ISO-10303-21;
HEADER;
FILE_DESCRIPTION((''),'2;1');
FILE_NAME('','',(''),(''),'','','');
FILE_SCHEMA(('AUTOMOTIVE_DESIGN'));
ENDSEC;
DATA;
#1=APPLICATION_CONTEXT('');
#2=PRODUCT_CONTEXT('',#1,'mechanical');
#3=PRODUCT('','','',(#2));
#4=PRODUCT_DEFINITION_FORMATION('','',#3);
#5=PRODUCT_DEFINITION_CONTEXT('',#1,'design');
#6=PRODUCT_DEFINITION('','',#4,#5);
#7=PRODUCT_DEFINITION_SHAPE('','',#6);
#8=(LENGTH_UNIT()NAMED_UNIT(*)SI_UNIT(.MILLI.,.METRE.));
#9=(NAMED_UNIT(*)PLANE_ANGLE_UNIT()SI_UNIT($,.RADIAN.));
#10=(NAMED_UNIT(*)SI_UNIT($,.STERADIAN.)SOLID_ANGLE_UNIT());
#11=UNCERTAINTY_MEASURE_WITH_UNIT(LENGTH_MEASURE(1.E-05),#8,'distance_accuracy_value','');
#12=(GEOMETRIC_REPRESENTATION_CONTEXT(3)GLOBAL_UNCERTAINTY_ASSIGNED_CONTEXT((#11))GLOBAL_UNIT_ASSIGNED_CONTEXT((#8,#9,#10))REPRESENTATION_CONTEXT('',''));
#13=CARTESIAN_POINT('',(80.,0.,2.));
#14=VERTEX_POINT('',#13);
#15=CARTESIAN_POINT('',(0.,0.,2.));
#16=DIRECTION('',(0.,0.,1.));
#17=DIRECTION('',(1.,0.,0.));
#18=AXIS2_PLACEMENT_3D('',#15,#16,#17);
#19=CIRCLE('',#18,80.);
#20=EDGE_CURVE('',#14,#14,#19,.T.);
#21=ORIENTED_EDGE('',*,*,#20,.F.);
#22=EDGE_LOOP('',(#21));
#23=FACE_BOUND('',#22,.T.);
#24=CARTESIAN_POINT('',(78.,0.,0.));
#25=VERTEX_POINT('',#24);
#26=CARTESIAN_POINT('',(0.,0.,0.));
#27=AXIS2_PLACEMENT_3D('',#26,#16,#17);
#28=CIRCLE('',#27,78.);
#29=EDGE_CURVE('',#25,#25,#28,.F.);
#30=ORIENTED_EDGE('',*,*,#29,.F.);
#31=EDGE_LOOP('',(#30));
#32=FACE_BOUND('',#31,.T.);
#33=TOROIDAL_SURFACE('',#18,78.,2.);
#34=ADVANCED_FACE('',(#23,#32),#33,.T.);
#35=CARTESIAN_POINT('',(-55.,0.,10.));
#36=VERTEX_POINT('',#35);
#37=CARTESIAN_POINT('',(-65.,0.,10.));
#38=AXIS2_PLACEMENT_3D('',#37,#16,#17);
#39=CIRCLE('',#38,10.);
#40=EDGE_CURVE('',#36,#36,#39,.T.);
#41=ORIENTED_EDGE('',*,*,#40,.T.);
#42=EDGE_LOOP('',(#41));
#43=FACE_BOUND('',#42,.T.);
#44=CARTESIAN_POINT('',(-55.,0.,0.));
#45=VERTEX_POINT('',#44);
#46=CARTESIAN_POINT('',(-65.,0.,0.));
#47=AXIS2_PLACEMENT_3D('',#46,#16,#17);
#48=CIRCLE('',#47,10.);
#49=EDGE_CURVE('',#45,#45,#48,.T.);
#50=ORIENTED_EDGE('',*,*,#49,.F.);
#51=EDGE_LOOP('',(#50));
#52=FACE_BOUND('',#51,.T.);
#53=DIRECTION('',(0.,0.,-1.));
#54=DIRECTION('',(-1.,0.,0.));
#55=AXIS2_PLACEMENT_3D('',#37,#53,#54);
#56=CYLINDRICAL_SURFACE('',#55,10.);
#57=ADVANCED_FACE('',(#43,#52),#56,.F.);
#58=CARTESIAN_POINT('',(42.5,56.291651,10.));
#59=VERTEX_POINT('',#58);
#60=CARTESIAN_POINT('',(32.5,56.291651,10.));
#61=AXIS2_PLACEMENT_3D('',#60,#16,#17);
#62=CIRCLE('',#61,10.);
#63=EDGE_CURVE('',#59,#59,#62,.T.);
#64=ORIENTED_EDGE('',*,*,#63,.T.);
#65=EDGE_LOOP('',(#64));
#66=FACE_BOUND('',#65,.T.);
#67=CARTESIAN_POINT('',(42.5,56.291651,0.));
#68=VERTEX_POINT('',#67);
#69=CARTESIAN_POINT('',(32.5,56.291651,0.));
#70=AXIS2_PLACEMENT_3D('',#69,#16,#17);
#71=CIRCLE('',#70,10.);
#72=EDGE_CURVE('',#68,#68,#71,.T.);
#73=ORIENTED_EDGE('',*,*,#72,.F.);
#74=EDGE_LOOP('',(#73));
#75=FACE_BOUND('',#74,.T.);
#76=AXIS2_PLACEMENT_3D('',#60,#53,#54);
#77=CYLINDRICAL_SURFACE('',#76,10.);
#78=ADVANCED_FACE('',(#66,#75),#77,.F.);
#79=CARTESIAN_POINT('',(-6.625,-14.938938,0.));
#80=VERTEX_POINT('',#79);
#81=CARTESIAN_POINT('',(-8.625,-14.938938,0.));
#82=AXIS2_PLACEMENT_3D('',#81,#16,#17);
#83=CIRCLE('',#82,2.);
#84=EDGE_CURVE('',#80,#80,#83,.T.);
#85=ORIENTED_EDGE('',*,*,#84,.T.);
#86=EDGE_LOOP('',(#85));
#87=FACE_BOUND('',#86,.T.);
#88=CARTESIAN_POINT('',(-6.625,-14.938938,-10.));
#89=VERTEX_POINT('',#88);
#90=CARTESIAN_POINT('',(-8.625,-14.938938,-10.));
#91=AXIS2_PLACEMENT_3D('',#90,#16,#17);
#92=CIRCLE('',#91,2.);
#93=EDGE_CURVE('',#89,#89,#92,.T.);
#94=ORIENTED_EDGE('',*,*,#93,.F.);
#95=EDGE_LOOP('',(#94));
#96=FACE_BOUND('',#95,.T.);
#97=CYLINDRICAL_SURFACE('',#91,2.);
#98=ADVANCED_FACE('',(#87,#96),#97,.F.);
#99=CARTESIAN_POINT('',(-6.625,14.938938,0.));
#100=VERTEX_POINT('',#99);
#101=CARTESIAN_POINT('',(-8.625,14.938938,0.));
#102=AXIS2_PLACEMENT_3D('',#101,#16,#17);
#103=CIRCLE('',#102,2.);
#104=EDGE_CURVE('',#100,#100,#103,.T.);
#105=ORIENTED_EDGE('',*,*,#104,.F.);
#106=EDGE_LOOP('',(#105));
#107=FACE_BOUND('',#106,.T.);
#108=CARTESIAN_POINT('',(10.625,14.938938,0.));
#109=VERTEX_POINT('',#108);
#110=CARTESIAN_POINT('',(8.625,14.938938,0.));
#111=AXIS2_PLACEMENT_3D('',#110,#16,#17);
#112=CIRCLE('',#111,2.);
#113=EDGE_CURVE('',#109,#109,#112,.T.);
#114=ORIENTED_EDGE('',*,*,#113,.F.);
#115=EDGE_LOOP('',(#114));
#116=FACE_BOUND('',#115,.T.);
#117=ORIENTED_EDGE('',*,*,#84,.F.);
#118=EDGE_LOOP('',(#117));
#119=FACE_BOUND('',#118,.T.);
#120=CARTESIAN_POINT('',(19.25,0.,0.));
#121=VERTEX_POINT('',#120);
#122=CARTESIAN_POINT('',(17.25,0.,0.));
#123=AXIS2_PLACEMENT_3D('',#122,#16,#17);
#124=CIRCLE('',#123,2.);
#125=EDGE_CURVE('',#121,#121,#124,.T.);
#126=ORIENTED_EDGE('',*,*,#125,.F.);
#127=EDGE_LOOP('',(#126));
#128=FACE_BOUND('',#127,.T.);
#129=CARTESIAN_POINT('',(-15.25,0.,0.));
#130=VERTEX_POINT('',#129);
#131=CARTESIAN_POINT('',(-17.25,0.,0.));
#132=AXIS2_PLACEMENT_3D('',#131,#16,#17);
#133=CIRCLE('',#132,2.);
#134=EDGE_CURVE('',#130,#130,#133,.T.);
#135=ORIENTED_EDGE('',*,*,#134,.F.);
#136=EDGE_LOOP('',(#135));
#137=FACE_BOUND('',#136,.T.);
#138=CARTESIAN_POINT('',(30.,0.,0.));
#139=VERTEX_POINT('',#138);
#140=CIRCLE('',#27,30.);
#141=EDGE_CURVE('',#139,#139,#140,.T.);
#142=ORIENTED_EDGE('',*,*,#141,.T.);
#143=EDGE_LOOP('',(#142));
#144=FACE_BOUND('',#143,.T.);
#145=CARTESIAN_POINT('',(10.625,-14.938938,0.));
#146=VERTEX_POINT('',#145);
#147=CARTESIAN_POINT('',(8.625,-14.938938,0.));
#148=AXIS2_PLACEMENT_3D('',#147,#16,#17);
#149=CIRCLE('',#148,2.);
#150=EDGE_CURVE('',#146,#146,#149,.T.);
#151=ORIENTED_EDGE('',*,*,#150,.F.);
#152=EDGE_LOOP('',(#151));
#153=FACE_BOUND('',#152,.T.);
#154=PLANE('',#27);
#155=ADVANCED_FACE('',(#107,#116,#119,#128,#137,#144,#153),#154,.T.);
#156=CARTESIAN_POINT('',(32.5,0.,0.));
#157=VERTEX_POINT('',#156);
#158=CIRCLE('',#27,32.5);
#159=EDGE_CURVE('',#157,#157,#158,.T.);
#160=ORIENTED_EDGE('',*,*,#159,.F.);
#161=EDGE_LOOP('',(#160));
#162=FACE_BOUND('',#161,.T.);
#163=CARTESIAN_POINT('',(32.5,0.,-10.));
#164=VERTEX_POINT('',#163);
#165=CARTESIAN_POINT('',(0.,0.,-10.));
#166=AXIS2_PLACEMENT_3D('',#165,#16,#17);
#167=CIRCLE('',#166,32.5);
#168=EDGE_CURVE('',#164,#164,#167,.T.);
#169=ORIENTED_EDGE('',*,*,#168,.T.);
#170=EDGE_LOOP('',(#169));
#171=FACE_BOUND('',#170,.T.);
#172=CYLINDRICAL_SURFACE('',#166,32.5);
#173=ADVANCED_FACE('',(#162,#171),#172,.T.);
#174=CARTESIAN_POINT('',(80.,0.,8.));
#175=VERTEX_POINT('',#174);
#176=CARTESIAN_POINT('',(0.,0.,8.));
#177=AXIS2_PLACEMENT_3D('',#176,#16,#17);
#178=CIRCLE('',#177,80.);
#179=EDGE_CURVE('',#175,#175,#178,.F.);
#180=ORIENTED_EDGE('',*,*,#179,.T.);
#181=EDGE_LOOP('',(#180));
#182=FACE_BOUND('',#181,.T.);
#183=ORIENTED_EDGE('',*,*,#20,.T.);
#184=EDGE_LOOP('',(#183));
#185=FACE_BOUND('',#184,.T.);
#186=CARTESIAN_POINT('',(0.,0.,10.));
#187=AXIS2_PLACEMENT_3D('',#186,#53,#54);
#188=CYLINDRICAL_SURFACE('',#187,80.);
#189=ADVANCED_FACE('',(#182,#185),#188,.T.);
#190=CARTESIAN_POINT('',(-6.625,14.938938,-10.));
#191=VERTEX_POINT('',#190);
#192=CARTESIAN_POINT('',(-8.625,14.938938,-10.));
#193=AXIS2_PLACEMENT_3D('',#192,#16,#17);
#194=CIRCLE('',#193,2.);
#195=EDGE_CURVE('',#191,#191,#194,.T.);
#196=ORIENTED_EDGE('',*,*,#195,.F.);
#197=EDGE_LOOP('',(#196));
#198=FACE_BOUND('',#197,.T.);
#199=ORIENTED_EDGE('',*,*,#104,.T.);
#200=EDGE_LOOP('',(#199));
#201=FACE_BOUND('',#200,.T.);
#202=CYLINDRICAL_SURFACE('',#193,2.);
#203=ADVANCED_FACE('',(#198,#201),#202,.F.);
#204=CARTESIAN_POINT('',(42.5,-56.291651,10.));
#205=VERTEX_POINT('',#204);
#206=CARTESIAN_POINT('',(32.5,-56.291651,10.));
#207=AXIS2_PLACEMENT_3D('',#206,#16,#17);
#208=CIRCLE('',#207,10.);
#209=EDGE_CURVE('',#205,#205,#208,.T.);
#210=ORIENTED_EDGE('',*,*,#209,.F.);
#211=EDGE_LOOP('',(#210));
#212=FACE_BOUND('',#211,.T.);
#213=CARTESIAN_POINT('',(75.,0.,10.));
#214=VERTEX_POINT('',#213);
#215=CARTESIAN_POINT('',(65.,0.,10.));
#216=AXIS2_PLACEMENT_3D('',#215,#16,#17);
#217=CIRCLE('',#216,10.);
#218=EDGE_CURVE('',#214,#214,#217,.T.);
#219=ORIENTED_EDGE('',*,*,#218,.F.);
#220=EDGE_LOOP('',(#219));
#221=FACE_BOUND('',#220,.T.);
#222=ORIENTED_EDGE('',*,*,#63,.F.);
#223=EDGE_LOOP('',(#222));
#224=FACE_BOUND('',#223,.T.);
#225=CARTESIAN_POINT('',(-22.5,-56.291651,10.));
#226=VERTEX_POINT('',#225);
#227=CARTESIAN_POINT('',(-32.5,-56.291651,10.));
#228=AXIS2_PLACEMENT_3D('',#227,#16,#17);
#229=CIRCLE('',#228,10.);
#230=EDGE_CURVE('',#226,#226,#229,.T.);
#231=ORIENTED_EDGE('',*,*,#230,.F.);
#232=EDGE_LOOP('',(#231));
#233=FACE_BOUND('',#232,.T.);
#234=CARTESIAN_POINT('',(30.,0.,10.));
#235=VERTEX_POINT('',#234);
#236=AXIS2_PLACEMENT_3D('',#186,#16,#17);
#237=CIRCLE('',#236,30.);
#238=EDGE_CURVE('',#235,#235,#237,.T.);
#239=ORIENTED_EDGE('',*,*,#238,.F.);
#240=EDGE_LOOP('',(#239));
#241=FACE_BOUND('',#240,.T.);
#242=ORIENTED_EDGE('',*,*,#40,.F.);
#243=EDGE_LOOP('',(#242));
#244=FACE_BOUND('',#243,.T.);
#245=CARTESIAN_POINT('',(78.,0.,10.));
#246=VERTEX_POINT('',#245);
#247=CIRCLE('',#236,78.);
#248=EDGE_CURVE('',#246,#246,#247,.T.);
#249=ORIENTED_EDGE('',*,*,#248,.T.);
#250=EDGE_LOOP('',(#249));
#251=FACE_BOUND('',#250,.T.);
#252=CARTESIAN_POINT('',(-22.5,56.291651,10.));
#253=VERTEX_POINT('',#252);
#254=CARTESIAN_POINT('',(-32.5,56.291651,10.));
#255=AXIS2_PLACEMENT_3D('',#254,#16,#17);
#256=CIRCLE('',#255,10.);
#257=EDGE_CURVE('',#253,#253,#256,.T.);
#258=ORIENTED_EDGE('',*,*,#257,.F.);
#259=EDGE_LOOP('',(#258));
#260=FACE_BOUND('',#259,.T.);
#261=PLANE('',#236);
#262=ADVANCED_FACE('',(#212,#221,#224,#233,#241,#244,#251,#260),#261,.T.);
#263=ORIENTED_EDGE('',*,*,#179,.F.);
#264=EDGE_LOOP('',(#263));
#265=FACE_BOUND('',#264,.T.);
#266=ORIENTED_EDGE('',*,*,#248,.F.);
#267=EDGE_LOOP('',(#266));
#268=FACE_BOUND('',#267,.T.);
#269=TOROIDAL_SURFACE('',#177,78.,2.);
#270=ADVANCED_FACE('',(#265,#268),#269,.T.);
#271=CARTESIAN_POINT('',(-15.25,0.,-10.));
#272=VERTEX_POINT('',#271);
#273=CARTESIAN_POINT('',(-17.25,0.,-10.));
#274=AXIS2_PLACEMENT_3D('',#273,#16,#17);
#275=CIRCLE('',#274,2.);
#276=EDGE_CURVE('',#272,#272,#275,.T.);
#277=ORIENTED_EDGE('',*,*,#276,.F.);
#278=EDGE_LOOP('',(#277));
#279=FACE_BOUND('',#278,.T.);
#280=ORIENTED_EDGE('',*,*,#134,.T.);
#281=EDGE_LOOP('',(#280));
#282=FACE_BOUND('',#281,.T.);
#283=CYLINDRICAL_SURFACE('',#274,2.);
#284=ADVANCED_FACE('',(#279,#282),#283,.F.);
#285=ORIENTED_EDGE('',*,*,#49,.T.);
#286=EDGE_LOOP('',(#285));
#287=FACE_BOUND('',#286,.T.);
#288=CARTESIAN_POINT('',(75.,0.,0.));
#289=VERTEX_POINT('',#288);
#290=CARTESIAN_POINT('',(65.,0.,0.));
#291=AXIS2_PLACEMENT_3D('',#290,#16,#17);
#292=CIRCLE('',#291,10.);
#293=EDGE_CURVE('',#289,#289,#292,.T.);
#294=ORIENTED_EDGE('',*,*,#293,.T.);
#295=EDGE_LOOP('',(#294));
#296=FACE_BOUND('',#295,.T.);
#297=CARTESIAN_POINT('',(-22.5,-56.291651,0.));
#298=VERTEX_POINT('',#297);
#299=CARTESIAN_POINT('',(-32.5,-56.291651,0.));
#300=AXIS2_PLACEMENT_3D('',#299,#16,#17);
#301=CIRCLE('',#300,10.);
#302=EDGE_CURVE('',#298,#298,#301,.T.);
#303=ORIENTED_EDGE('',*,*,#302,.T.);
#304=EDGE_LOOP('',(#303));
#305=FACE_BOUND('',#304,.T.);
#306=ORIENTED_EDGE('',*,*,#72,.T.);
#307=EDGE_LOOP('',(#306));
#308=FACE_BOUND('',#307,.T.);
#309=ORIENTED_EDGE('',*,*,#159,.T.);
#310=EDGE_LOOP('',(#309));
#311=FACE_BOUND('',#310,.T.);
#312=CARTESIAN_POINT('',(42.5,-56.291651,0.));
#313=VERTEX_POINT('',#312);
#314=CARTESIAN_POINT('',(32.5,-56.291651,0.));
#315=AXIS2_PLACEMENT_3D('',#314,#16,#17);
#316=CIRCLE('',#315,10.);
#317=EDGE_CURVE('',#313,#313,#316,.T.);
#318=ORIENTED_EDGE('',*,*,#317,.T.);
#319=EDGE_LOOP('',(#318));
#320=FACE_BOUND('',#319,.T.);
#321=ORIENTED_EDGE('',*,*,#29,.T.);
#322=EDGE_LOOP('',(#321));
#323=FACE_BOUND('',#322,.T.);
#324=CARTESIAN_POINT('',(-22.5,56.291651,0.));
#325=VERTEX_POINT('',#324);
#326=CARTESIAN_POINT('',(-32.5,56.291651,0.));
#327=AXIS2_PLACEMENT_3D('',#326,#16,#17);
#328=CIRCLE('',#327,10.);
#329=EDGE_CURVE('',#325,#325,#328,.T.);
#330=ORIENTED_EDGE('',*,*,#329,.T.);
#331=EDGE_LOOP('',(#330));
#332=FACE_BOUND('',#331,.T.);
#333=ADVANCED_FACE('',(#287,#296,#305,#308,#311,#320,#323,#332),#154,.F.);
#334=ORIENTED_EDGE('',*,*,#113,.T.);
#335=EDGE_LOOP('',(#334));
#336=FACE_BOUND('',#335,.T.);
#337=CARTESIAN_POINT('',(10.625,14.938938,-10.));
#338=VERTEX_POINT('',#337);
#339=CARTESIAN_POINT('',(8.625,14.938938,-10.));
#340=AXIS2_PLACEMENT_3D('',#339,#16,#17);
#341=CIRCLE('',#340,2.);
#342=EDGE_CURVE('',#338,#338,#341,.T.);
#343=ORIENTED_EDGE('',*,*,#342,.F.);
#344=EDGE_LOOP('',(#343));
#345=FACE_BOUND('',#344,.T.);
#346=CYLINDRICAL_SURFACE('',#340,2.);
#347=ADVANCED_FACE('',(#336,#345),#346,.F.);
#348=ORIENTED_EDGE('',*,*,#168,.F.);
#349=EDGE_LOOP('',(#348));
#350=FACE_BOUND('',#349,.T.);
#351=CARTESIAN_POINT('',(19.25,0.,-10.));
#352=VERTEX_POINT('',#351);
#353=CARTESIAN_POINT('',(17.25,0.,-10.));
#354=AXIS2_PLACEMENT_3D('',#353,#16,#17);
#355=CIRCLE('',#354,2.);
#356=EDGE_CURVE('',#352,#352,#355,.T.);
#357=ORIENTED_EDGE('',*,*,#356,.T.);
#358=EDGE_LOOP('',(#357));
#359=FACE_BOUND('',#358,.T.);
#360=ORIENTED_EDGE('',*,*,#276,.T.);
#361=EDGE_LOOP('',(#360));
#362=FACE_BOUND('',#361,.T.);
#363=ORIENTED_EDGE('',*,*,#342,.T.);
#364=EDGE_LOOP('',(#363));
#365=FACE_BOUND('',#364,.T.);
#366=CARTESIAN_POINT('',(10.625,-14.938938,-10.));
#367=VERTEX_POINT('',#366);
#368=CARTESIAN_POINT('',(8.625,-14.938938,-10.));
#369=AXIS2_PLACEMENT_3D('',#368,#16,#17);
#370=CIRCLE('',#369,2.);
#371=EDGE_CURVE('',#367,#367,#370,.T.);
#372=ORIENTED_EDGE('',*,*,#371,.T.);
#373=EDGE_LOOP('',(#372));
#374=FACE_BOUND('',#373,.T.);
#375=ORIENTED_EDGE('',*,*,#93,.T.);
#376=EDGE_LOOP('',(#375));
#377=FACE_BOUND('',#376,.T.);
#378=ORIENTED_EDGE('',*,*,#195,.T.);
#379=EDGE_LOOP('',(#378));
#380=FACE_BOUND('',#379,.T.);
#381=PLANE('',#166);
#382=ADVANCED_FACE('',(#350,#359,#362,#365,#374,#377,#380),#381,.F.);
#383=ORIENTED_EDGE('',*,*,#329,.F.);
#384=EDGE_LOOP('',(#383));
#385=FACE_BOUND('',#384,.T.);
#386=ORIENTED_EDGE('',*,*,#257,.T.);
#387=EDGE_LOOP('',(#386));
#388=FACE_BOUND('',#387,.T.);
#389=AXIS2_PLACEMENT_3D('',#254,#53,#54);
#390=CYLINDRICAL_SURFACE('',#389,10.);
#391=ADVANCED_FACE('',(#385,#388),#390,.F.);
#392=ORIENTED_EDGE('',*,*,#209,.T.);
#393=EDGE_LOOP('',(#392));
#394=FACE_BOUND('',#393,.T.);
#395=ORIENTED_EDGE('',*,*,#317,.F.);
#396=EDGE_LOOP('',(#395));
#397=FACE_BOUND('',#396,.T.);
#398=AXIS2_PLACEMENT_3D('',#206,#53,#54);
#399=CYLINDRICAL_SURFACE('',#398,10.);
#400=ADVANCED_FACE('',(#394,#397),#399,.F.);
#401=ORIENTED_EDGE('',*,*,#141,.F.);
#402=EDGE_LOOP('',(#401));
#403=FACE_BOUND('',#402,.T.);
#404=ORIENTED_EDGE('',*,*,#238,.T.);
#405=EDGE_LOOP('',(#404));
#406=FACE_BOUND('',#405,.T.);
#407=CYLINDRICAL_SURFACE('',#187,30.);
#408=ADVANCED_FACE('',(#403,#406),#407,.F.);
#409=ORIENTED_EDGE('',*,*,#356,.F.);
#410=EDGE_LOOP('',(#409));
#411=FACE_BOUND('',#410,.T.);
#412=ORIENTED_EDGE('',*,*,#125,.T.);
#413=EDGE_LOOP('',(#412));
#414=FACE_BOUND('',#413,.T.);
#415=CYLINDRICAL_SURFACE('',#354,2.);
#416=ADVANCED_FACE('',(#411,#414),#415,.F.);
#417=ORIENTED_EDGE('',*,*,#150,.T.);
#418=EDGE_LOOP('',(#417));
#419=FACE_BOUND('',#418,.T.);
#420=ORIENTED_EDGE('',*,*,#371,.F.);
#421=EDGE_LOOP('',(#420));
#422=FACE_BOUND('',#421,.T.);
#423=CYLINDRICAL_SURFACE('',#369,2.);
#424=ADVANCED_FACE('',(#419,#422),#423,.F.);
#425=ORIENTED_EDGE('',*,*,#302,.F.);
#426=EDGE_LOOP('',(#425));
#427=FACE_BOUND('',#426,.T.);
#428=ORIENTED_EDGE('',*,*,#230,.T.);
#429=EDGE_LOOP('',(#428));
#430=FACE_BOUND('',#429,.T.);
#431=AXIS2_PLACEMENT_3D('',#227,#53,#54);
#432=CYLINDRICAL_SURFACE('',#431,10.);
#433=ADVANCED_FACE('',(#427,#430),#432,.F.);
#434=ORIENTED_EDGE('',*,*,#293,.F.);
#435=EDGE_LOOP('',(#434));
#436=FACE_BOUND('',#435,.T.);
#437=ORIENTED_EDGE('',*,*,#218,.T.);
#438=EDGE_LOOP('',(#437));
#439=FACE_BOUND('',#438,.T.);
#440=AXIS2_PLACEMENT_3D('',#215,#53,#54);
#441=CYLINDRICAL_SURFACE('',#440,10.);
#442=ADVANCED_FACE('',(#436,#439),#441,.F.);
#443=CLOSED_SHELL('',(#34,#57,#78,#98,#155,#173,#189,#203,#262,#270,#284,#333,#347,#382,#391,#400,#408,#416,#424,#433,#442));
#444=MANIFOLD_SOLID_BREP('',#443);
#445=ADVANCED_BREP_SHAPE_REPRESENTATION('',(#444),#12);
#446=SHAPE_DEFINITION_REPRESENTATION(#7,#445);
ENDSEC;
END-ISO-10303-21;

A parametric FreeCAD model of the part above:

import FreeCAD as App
import Part
import Sketcher

V = App.Vector
Q = App.Units.Quantity


def edges_at(feature, points):
    """Names of the edges that pass closest to the given points."""
    edges = feature.Shape.Edges
    near = lambda p: min(range(len(edges)), key=lambda i: edges[i].distToShape(Part.Vertex(*p))[0])
    return sorted({f"Edge{near(p) + 1}" for p in points})

doc = App.newDocument("Part")
body = doc.addObject("PartDesign::Body", "Body")

# Sketch on XY plane
sketch1 = doc.addObject("Sketcher::SketchObject", "Sketch")
body.addObject(sketch1)
sketch1.AttachmentSupport = (doc.XY_Plane, [""])
sketch1.MapMode = "FlatFace"
sketch1.addGeometry(Part.Circle(V(0, 0, 0), V(0, 0, 1), 80), False)
sketch1.addConstraint([
    Sketcher.Constraint("Coincident", 0, 3, -1, 1),
    Sketcher.Constraint("Diameter", 0, Q("160 mm")),
])
pad1 = doc.addObject("PartDesign::Pad", "Pad")
body.addObject(pad1)
pad1.Profile = sketch1
pad1.Length = 10

# Sketch on XY plane
sketch2 = doc.addObject("Sketcher::SketchObject", "Sketch001")
body.addObject(sketch2)
sketch2.AttachmentSupport = (doc.XY_Plane, [""])
sketch2.MapMode = "FlatFace"
sketch2.addGeometry(Part.Circle(V(0, 0, 0), V(0, 0, 1), 32), False)
sketch2.addConstraint([
    Sketcher.Constraint("Coincident", 0, 3, -1, 1),
    Sketcher.Constraint("Diameter", 0, Q("65 mm")),
])
pad2 = doc.addObject("PartDesign::Pad", "Pad001")
body.addObject(pad2)
pad2.Profile = sketch2
pad2.Length = 10
pad2.Reversed = True

# Sketch on XY plane
sketch3 = doc.addObject("Sketcher::SketchObject", "Sketch002")
body.addObject(sketch3)
sketch3.AttachmentSupport = (doc.XY_Plane, [""])
sketch3.MapMode = "FlatFace"
sketch3.addGeometry([
    Part.Circle(V(-17.2, 0, 0), V(0, 0, 1), 2),  # 0
    Part.Circle(V(-8.6, 14.9, 0), V(0, 0, 1), 2),  # 1
    Part.Circle(V(8.6, 14.9, 0), V(0, 0, 1), 2),  # 2
    Part.Circle(V(17.2, 0, 0), V(0, 0, 1), 2),  # 3
    Part.Circle(V(8.6, -14.9, 0), V(0, 0, 1), 2),  # 4
    Part.Circle(V(-8.6, -14.9, 0), V(0, 0, 1), 2),  # 5
], False)
sketch3.addConstraint([
    Sketcher.Constraint("Equal", 0, 1),
    Sketcher.Constraint("Equal", 1, 2),
    Sketcher.Constraint("Equal", 2, 3),
    Sketcher.Constraint("Equal", 3, 4),
    Sketcher.Constraint("Equal", 4, 5),
    Sketcher.Constraint("Symmetric", 0, 3, 3, 3, -1, 1),
    Sketcher.Constraint("Symmetric", 1, 3, 4, 3, -1, 1),
    Sketcher.Constraint("Symmetric", 2, 3, 5, 3, -1, 1),
    Sketcher.Constraint("Symmetric", 1, 3, 2, 3, -2),
    Sketcher.Constraint("PointOnObject", 0, 3, -1),
    Sketcher.Constraint("Diameter", 0, Q("4 mm")),
    Sketcher.Constraint("DistanceX", 0, 3, 3, 3, Q("34.5 mm")),
    Sketcher.Constraint("DistanceX", 1, 3, 2, 3, Q("17.25 mm")),
    Sketcher.Constraint("DistanceY", -1, 1, 1, 3, Q("14.938938 mm")),
])
pocket1 = doc.addObject("PartDesign::Pocket", "Pocket")
body.addObject(pocket1)
pocket1.Profile = sketch3
pocket1.Length = 10

# Sketch on XY plane
sketch4 = doc.addObject("Sketcher::SketchObject", "Sketch003")
body.addObject(sketch4)
sketch4.AttachmentSupport = (doc.XY_Plane, [""])
sketch4.MapMode = "FlatFace"
sketch4.addGeometry(Part.Circle(V(0, 0, 0), V(0, 0, 1), 30), False)
sketch4.addConstraint([
    Sketcher.Constraint("Coincident", 0, 3, -1, 1),
    Sketcher.Constraint("Diameter", 0, Q("60 mm")),
])
pocket2 = doc.addObject("PartDesign::Pocket", "Pocket001")
body.addObject(pocket2)
pocket2.Profile = sketch4
pocket2.Length = 10
pocket2.Reversed = True

# Sketch on XY plane
sketch5 = doc.addObject("Sketcher::SketchObject", "Sketch004")
body.addObject(sketch5)
sketch5.AttachmentSupport = (doc.XY_Plane, [""])
sketch5.MapMode = "FlatFace"
sketch5.addGeometry([
    Part.Circle(V(-65, 0, 0), V(0, 0, 1), 10),  # 0
    Part.Circle(V(-32, 56, 0), V(0, 0, 1), 10),  # 1
    Part.Circle(V(32, 56, 0), V(0, 0, 1), 10),  # 2
    Part.Circle(V(65, 0, 0), V(0, 0, 1), 10),  # 3
    Part.Circle(V(32, -56, 0), V(0, 0, 1), 10),  # 4
    Part.Circle(V(-32, -56, 0), V(0, 0, 1), 10),  # 5
], False)
sketch5.addConstraint([
    Sketcher.Constraint("Equal", 0, 1),
    Sketcher.Constraint("Equal", 1, 2),
    Sketcher.Constraint("Equal", 2, 3),
    Sketcher.Constraint("Equal", 3, 4),
    Sketcher.Constraint("Equal", 4, 5),
    Sketcher.Constraint("Symmetric", 0, 3, 3, 3, -1, 1),
    Sketcher.Constraint("Symmetric", 1, 3, 4, 3, -1, 1),
    Sketcher.Constraint("Symmetric", 2, 3, 5, 3, -1, 1),
    Sketcher.Constraint("Symmetric", 1, 3, 2, 3, -2),
    Sketcher.Constraint("PointOnObject", 0, 3, -1),
    Sketcher.Constraint("Diameter", 0, Q("20 mm")),
    Sketcher.Constraint("DistanceX", 0, 3, -1, 1, Q("65 mm")),
    Sketcher.Constraint("DistanceX", 1, 3, 2, 3, Q("65 mm")),
    Sketcher.Constraint("DistanceY", -1, 1, 1, 3, Q("56.291651 mm")),
])
pocket3 = doc.addObject("PartDesign::Pocket", "Pocket002")
body.addObject(pocket3)
pocket3.Profile = sketch5
pocket3.Length = 10
pocket3.Reversed = True
doc.recompute()

fillet = doc.addObject("PartDesign::Fillet", "Fillet")
body.addObject(fillet)
fillet.Base = (pocket3, edges_at(pocket3, [(-80, 0, 0), (-80, 0, 10)]))
fillet.Radius = 2

doc.recompute()
